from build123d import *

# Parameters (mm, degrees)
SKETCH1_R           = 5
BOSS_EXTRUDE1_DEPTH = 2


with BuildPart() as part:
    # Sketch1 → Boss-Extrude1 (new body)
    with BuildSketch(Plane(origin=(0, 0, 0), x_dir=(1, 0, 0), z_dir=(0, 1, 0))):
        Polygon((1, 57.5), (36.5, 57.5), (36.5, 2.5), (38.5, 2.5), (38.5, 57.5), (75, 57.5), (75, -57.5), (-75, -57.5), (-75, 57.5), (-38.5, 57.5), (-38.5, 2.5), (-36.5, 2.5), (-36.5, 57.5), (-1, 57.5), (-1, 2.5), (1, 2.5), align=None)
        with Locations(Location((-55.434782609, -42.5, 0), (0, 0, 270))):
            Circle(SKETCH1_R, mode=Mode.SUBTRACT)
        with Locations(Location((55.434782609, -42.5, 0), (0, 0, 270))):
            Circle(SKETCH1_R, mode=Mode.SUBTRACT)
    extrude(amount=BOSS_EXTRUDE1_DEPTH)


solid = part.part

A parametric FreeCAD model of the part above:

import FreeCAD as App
import Part
import Sketcher


def add_polygon(sketch, points):
    """Adds a closed chain of lines whose ends are joined by coincident constraints."""
    first, n = sketch.GeometryCount, len(points)
    for a, b in zip(points, points[1:] + points[:1]):
        sketch.addGeometry(Part.LineSegment(App.Vector(*a, 0), App.Vector(*b, 0)), False)
    for i in range(n):
        sketch.addConstraint(Sketcher.Constraint("Coincident", first + i, 2, first + (i + 1) % n, 1))

doc = App.newDocument("Part")
body = doc.addObject("PartDesign::Body", "Body")

# Sketch on XZ plane
sketch1 = body.newObject("Sketcher::SketchObject", "Sketch")
sketch1.AttachmentSupport = (doc.getObject("XZ_Plane"), [""])
sketch1.MapMode = "FlatFace"
add_polygon(sketch1, [(36.5, -57.5), (1, -57.5), (1, -2.5), (-1, -2.5), (-1, -57.5), (-36.5, -57.5), (-36.5, -2.5), (-38.5, -2.5), (-38.5, -57.5), (-75, -57.5), (-75, 57.5), (75, 57.5), (75, -57.5), (38.5, -57.5), (38.5, -2.5), (36.5, -2.5)])  # lines 0-15
sketch1.addGeometry(Part.Circle(App.Vector(55.4, 42.5, 0), App.Vector(0, 0, 1), 5), False)  # 16
sketch1.addGeometry(Part.Circle(App.Vector(-55.4, 42.5, 0), App.Vector(0, 0, 1), 5), False)  # 17
sketch1.addConstraint([
    Sketcher.Constraint("Horizontal", 0),
    Sketcher.Constraint("Vertical", 1),
    Sketcher.Constraint("Horizontal", 2),
    Sketcher.Constraint("Vertical", 3),
    Sketcher.Constraint("Horizontal", 4),
    Sketcher.Constraint("Vertical", 5),
    Sketcher.Constraint("Horizontal", 6),
    Sketcher.Constraint("Vertical", 7),
    Sketcher.Constraint("Horizontal", 8),
    Sketcher.Constraint("Vertical", 9),
    Sketcher.Constraint("Horizontal", 10),
    Sketcher.Constraint("Vertical", 11),
    Sketcher.Constraint("Horizontal", 12),
    Sketcher.Constraint("Vertical", 13),
    Sketcher.Constraint("Horizontal", 14),
    Sketcher.Constraint("Vertical", 15),
    Sketcher.Constraint("Equal", 16, 17),
    Sketcher.Constraint("Symmetric", 8, 2, 10, 2, -1, 1),
    Sketcher.Constraint("Symmetric", 16, 3, 17, 3, -2),
    Sketcher.Constraint("Symmetric", 0, 2, 3, 2, -2),
    Sketcher.Constraint("Symmetric", 7, 2, 12, 2, -2),
    Sketcher.Constraint("Symmetric", 5, 2, 14, 2, -2),
    Sketcher.Constraint("Horizontal", 2, 2, 5, 2),
    Sketcher.Constraint("Horizontal", 4, 2, 7, 2),
    Sketcher.Constraint("Equal", 2, 6),
    Sketcher.Constraint("Diameter", 16, 10.0),
    Sketcher.Constraint("DistanceX", 2, 2, 2, 1, 2.0),
    Sketcher.Constraint("DistanceX", 10, 1, 10, 2, 150.0),
    Sketcher.Constraint("DistanceY", 1, 1, 1, 2, 55.0),
    Sketcher.Constraint("DistanceY", 9, 1, 9, 2, 115.0),
    Sketcher.Constraint("DistanceX", 0, 2, 0, 1, 35.5),
    Sketcher.Constraint("DistanceY", 0, 2, 16, 3, 100.0),
    Sketcher.Constraint("DistanceX", -1, 1, 16, 3, 55.434783),
])
pad1 = body.newObject("PartDesign::Pad", "Pad")
pad1.Profile = sketch1
pad1.Length = 2
pad1.Reversed = True

doc.recompute()
